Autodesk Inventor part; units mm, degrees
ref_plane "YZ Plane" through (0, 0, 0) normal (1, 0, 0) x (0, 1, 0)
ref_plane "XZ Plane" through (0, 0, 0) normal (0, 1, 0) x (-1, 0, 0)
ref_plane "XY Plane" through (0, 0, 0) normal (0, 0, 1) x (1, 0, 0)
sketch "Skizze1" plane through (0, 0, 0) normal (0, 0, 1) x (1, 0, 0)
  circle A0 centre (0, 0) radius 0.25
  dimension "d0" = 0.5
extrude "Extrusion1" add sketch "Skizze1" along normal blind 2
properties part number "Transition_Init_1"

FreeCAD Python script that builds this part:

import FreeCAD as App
import Part
import Sketcher

V = App.Vector
Q = App.Units.Quantity

doc = App.newDocument("Part")
params = doc.addObject("Spreadsheet::Sheet", "Params")
for row, (alias, value) in enumerate([
    ("sketch1_diameter", "0.5 mm"),
    ("pad1_length", "2 mm"),
], start=1):
    params.set(f"A{row}", alias)
    params.set(f"B{row}", "=" + value)
    params.setAlias(f"B{row}", alias)

body = doc.addObject("PartDesign::Body", "Body")

# Sketch on XY plane
sketch1 = doc.addObject("Sketcher::SketchObject", "Sketch")
body.addObject(sketch1)
sketch1.AttachmentSupport = (doc.XY_Plane, [""])
sketch1.MapMode = "FlatFace"
sketch1.addGeometry(Part.Circle(V(0, 0, 0), V(0, 0, 1), 0.25), False)
sketch1.addConstraint([
    Sketcher.Constraint("Coincident", 0, 3, -1, 1),
    Sketcher.Constraint("Diameter", 0, Q("0.5 mm")),
])
sketch1.setExpression("Constraints[1]", "Params.sketch1_diameter")
pad1 = doc.addObject("PartDesign::Pad", "Pad")
body.addObject(pad1)
pad1.Profile = sketch1
pad1.setExpression("Length", "Params.pad1_length")

doc.recompute()
